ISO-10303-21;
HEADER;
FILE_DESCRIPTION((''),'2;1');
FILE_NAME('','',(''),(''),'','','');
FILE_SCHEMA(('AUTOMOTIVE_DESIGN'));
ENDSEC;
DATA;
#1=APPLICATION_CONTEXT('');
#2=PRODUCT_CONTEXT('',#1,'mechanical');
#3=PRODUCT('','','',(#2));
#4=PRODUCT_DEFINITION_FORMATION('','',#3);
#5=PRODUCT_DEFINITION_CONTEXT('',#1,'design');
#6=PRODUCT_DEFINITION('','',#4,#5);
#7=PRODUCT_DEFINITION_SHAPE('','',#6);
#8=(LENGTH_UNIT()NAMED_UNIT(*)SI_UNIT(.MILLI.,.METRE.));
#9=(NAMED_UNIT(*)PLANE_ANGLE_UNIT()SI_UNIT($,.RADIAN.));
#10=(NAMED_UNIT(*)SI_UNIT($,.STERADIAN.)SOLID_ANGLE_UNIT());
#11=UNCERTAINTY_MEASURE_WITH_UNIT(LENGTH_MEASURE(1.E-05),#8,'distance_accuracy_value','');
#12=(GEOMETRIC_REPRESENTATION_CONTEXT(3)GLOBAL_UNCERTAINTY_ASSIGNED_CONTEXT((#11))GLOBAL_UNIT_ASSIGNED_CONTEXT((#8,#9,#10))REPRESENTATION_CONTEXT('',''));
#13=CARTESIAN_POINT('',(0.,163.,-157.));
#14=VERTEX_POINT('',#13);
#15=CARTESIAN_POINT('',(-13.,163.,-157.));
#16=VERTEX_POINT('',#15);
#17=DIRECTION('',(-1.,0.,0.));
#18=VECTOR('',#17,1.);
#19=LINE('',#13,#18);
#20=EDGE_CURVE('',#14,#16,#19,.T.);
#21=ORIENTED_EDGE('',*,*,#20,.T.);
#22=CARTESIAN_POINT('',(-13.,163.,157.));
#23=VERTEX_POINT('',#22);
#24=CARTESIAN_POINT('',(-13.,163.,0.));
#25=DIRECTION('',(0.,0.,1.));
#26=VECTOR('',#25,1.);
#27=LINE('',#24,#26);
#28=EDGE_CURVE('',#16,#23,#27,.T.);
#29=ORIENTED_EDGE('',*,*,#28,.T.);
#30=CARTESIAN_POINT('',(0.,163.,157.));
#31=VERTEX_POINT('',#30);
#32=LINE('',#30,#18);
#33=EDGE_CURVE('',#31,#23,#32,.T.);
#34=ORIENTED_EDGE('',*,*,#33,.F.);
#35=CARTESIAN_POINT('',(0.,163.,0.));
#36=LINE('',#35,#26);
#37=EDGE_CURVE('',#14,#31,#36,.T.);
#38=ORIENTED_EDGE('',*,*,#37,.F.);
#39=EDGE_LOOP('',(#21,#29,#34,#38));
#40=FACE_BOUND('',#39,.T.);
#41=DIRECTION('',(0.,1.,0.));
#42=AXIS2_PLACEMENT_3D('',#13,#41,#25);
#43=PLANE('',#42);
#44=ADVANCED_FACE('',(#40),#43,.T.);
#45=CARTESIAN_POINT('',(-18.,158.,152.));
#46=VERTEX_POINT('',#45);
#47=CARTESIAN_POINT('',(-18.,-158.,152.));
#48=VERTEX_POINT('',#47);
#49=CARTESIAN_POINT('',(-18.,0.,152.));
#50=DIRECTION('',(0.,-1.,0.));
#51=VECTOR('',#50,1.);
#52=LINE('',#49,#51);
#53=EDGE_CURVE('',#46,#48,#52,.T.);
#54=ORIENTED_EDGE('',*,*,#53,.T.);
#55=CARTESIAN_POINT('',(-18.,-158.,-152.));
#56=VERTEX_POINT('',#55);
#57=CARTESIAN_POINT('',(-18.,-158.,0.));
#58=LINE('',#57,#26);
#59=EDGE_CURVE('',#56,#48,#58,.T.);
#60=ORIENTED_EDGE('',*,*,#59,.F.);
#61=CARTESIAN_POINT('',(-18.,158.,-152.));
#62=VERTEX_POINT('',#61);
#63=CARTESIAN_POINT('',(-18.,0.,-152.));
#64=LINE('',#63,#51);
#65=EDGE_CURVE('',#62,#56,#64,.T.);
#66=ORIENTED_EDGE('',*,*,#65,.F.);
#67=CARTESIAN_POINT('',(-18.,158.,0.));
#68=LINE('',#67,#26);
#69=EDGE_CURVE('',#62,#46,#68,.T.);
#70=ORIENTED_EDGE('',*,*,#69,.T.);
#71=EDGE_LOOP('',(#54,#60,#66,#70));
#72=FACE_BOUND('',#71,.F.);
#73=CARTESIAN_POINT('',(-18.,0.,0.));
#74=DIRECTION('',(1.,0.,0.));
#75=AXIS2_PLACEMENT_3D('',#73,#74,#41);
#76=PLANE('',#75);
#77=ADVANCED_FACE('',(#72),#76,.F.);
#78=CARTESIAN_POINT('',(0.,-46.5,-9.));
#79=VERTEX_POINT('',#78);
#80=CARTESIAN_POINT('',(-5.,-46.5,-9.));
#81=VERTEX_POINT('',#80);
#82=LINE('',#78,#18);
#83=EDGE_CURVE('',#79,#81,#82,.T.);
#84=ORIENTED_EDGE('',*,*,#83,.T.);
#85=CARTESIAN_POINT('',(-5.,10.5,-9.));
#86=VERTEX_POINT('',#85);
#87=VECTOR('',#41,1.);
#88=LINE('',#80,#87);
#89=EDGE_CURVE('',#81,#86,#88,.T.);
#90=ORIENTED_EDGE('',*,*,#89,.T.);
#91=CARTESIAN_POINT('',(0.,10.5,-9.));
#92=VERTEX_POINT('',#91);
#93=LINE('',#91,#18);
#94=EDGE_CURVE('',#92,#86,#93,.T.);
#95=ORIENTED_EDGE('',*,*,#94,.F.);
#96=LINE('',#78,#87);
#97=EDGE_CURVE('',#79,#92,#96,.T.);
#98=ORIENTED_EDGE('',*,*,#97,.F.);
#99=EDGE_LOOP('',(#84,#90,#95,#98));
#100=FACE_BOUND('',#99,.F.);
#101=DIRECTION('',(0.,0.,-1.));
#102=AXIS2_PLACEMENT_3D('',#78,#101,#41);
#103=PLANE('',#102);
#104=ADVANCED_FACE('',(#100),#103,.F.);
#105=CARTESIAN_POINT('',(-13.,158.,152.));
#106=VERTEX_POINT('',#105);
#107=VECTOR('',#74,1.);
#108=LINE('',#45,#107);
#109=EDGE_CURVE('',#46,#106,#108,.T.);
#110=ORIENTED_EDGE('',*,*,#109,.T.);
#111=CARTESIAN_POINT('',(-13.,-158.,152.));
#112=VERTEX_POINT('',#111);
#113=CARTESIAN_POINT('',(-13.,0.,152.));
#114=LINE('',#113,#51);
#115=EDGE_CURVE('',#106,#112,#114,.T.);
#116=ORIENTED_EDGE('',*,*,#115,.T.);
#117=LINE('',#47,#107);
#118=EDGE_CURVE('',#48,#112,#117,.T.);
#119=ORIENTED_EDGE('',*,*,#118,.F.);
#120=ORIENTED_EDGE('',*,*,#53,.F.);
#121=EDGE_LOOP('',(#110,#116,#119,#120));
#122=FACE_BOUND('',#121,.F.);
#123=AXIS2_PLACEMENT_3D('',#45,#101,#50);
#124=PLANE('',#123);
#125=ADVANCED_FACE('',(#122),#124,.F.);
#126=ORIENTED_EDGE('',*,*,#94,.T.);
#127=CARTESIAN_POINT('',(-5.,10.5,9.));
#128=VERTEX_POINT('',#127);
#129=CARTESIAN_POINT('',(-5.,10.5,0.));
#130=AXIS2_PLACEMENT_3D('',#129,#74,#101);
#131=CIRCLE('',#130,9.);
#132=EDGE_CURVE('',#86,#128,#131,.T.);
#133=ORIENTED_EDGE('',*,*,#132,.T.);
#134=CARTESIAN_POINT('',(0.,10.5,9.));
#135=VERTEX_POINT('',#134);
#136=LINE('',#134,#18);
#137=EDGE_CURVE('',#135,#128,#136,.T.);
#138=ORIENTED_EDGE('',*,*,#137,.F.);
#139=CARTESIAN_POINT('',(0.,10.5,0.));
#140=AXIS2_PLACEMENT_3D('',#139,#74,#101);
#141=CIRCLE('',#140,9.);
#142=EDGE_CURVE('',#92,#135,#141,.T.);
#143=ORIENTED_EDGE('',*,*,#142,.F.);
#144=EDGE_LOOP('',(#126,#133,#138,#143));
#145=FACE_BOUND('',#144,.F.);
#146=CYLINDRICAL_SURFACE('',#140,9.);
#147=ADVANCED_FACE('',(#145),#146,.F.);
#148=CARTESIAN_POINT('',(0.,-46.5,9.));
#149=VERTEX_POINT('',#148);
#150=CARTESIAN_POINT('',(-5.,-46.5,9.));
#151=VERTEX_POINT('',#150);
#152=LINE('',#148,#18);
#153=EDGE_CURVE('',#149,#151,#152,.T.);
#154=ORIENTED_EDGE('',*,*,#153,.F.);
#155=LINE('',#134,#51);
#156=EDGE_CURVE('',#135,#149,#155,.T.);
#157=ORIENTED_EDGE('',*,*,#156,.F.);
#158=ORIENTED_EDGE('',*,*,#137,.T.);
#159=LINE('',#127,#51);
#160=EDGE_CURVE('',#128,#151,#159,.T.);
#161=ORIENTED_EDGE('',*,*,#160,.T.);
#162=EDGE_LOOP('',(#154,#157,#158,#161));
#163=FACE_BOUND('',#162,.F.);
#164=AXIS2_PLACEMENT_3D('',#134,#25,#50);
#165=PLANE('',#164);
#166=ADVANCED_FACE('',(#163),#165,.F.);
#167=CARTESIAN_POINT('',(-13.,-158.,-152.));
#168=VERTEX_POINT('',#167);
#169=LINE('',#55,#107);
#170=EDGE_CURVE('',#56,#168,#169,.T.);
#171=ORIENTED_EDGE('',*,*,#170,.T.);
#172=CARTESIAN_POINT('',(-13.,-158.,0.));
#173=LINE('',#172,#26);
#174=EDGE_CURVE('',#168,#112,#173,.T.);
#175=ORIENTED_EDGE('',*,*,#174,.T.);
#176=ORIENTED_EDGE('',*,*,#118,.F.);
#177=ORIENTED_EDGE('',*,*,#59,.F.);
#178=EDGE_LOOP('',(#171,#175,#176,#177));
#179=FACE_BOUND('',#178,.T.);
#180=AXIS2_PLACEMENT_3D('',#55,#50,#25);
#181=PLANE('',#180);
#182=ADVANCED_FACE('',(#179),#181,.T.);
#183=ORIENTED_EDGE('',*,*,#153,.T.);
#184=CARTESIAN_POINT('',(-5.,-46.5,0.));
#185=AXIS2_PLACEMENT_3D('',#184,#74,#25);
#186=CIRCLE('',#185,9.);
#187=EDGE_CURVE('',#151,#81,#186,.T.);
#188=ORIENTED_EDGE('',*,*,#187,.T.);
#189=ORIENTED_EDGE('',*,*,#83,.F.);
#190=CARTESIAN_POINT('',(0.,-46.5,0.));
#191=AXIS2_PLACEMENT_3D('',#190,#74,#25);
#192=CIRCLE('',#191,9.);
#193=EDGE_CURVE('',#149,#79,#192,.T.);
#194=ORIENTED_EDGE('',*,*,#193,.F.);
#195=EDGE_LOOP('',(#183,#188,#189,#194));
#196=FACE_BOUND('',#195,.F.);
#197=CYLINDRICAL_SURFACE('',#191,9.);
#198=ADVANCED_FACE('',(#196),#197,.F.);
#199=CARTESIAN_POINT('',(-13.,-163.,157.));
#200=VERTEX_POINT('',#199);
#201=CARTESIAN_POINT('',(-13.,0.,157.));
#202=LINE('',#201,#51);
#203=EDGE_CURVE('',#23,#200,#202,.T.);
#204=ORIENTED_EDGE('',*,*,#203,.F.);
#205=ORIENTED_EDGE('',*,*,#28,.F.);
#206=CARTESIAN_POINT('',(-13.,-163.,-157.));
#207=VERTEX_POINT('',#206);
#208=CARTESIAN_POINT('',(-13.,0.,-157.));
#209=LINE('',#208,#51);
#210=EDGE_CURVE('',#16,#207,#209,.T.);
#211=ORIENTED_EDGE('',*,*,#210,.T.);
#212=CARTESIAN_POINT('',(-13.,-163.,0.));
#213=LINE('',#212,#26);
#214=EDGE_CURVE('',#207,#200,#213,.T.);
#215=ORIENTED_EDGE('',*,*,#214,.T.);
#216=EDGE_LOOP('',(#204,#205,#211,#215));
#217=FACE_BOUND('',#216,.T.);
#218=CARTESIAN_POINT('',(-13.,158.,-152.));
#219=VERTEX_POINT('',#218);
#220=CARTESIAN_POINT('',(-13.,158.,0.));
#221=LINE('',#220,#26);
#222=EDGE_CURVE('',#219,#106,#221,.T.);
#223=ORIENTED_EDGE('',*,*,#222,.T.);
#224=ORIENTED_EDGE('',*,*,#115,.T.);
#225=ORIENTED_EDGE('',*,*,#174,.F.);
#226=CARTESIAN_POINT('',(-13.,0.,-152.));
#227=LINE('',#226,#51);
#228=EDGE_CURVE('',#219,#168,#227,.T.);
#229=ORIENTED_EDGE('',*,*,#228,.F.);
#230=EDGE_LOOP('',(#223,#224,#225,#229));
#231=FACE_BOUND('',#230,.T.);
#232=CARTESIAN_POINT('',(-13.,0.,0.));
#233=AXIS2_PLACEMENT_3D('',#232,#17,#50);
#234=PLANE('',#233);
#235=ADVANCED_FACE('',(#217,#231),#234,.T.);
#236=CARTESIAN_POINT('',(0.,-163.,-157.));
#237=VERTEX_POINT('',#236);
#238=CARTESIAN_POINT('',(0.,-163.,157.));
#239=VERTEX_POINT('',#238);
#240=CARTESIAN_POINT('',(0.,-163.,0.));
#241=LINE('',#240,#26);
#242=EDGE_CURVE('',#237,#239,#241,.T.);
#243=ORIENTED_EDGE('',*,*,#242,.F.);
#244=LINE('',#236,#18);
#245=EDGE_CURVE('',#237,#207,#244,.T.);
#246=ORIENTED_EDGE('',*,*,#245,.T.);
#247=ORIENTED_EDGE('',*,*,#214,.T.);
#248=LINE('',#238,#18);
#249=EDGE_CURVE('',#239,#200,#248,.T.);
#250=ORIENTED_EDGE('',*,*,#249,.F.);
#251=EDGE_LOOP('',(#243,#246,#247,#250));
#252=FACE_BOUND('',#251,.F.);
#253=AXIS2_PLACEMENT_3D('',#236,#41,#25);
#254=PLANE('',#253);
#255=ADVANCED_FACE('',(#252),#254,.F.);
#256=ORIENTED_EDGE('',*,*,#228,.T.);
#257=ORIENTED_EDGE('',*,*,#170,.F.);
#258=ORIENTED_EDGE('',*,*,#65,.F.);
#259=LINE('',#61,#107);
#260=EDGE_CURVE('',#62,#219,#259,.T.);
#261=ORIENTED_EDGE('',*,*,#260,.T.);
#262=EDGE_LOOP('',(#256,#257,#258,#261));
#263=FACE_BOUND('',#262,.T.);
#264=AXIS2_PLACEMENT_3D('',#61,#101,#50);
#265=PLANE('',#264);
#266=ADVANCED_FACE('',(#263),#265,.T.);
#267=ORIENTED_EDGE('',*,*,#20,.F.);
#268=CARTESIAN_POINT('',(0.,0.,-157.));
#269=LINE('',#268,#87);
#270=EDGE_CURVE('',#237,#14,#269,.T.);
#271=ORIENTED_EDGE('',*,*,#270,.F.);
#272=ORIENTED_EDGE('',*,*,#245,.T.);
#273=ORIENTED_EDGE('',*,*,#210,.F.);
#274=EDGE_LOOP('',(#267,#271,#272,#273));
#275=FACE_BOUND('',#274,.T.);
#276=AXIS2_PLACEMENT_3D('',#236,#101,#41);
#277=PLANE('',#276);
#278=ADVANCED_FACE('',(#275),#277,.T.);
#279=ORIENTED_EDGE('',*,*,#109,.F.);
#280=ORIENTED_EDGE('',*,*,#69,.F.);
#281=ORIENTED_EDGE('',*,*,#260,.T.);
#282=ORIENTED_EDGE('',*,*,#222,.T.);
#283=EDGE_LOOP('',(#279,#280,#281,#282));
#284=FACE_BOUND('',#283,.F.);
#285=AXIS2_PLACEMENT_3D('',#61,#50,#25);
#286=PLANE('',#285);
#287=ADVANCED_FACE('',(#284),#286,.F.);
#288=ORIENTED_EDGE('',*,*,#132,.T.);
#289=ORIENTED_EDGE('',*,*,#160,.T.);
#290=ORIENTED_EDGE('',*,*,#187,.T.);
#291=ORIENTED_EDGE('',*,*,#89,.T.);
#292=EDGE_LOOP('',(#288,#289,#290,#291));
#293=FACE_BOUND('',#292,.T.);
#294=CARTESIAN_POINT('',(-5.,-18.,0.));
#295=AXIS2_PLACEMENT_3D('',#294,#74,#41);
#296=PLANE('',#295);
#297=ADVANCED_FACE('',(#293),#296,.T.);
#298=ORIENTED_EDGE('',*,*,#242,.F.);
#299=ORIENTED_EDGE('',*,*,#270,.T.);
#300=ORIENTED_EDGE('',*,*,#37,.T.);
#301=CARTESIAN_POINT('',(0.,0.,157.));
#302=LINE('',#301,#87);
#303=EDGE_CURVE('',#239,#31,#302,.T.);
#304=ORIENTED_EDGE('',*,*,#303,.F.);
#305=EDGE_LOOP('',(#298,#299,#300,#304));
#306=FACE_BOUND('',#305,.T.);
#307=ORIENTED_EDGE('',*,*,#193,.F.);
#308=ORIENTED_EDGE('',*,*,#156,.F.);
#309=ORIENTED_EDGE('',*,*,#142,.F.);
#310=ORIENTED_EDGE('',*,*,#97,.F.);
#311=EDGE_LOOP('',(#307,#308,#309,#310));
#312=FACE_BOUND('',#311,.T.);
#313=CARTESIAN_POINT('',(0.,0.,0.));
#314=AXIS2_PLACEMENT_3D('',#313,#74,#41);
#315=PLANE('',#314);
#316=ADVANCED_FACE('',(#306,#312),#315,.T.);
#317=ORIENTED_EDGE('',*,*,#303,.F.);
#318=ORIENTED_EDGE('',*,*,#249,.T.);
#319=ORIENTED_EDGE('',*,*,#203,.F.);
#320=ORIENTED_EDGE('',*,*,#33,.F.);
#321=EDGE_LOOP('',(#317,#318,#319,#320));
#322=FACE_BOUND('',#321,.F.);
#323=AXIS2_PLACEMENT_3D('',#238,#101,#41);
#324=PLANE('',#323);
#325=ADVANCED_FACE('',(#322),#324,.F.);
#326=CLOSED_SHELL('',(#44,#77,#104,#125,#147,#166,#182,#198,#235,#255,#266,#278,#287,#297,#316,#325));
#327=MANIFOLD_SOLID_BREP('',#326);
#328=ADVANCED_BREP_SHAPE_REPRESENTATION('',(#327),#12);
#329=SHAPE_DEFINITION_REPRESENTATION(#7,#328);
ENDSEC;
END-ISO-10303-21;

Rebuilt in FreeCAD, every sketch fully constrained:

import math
import FreeCAD as App
import Part
import Sketcher
from FreeCAD import Vector
Q = App.Units.Quantity

doc = App.newDocument("Part")
body = doc.addObject("PartDesign::Body", "Body")

# Sketch on YZ plane
sketch1 = body.newObject("Sketcher::SketchObject", "Sketch")
sketch1.AttachmentSupport = (doc.getObject("YZ_Plane"), [""])
sketch1.MapMode = "FlatFace"
sketch1.addGeometry(Part.LineSegment(Vector(-163, 157, 0), Vector(-163, -157, 0)), False)
sketch1.addGeometry(Part.LineSegment(Vector(-163, -157, 0), Vector(163, -157, 0)), False)
sketch1.addGeometry(Part.LineSegment(Vector(163, -157, 0), Vector(163, 157, 0)), False)
sketch1.addGeometry(Part.LineSegment(Vector(163, 157, 0), Vector(-163, 157, 0)), False)
sketch1.addConstraint(Sketcher.Constraint("Coincident", 0, 2, 1, 1))
sketch1.addConstraint(Sketcher.Constraint("Coincident", 1, 2, 2, 1))
sketch1.addConstraint(Sketcher.Constraint("Coincident", 2, 2, 3, 1))
sketch1.addConstraint(Sketcher.Constraint("Coincident", 3, 2, 0, 1))
sketch1.addConstraint(Sketcher.Constraint("Vertical", 0))
sketch1.addConstraint(Sketcher.Constraint("Horizontal", 1))
sketch1.addConstraint(Sketcher.Constraint("Vertical", 2))
sketch1.addConstraint(Sketcher.Constraint("Horizontal", 3))
sketch1.addConstraint(Sketcher.Constraint("Symmetric", 0, 2, 2, 2, -1, 1))
sketch1.addConstraint(Sketcher.Constraint("DistanceX", 1, 1, 1, 2, Q("326 mm")))
sketch1.addConstraint(Sketcher.Constraint("DistanceY", 0, 2, 0, 1, Q("314 mm")))
pad1 = body.newObject("PartDesign::Pad", "Pad")
pad1.Profile = sketch1
pad1.Length = 18
pad1.Reversed = True

# Sketch on YZ plane
sketch2 = body.newObject("Sketcher::SketchObject", "Sketch001")
sketch2.AttachmentSupport = (doc.getObject("YZ_Plane"), [""])
sketch2.MapMode = "FlatFace"
sketch2.addGeometry(Part.ArcOfCircle(Part.Circle(Vector(10, 0, 0), Vector(0, 0, 1), 9), math.radians(-90), math.radians(90)), False)
sketch2.addGeometry(Part.LineSegment(Vector(10, 9, 0), Vector(-46, 9, 0)), False)
sketch2.addGeometry(Part.ArcOfCircle(Part.Circle(Vector(-46, 0, 0), Vector(0, 0, 1), 9), math.radians(90), math.radians(270)), False)
sketch2.addGeometry(Part.LineSegment(Vector(-46, -9, 0), Vector(10, -9, 0)), False)
sketch2.addConstraint(Sketcher.Constraint("Tangent", 0, 2, 1, 1))
sketch2.addConstraint(Sketcher.Constraint("Tangent", 1, 2, 2, 1))
sketch2.addConstraint(Sketcher.Constraint("Tangent", 2, 2, 3, 1))
sketch2.addConstraint(Sketcher.Constraint("Tangent", 3, 2, 0, 1))
sketch2.addConstraint(Sketcher.Constraint("Horizontal", 1))
sketch2.addConstraint(Sketcher.Constraint("Horizontal", 3))
sketch2.addConstraint(Sketcher.Constraint("PointOnObject", 0, 3, -1))
sketch2.addConstraint(Sketcher.Constraint("Radius", 0, Q("9 mm")))
sketch2.addConstraint(Sketcher.Constraint("DistanceX", 1, 2, 1, 1, Q("57 mm")))
sketch2.addConstraint(Sketcher.Constraint("DistanceX", -1, 1, 0, 3, Q("10.5 mm")))
pocket1 = body.newObject("PartDesign::Pocket", "Pocket")
pocket1.Profile = sketch2
pocket1.Length = 5

# Sketch on YZ plane
sketch3 = body.newObject("Sketcher::SketchObject", "Sketch002")
sketch3.AttachmentSupport = (doc.getObject("YZ_Plane"), [""])
sketch3.MapMode = "FlatFace"
sketch3.AttachmentOffset = App.Placement(Vector(0, 0, -18), App.Rotation())
sketch3.addGeometry(Part.LineSegment(Vector(163, 157, 0), Vector(163, -157, 0)), False)
sketch3.addGeometry(Part.LineSegment(Vector(163, -157, 0), Vector(-163, -157, 0)), False)
sketch3.addGeometry(Part.LineSegment(Vector(-163, -157, 0), Vector(-163, 157, 0)), False)
sketch3.addGeometry(Part.LineSegment(Vector(-163, 157, 0), Vector(163, 157, 0)), False)
sketch3.addGeometry(Part.LineSegment(Vector(-158, -152, 0), Vector(158, -152, 0)), False)
sketch3.addGeometry(Part.LineSegment(Vector(158, -152, 0), Vector(158, 152, 0)), False)
sketch3.addGeometry(Part.LineSegment(Vector(158, 152, 0), Vector(-158, 152, 0)), False)
sketch3.addGeometry(Part.LineSegment(Vector(-158, 152, 0), Vector(-158, -152, 0)), False)
sketch3.addConstraint(Sketcher.Constraint("Coincident", 0, 2, 1, 1))
sketch3.addConstraint(Sketcher.Constraint("Coincident", 1, 2, 2, 1))
sketch3.addConstraint(Sketcher.Constraint("Coincident", 2, 2, 3, 1))
sketch3.addConstraint(Sketcher.Constraint("Coincident", 3, 2, 0, 1))
sketch3.addConstraint(Sketcher.Constraint("Coincident", 4, 2, 5, 1))
sketch3.addConstraint(Sketcher.Constraint("Coincident", 5, 2, 6, 1))
sketch3.addConstraint(Sketcher.Constraint("Coincident", 6, 2, 7, 1))
sketch3.addConstraint(Sketcher.Constraint("Coincident", 7, 2, 4, 1))
sketch3.addConstraint(Sketcher.Constraint("Vertical", 0))
sketch3.addConstraint(Sketcher.Constraint("Horizontal", 1))
sketch3.addConstraint(Sketcher.Constraint("Vertical", 2))
sketch3.addConstraint(Sketcher.Constraint("Horizontal", 3))
sketch3.addConstraint(Sketcher.Constraint("Horizontal", 4))
sketch3.addConstraint(Sketcher.Constraint("Vertical", 5))
sketch3.addConstraint(Sketcher.Constraint("Horizontal", 6))
sketch3.addConstraint(Sketcher.Constraint("Vertical", 7))
sketch3.addConstraint(Sketcher.Constraint("Symmetric", 0, 2, 2, 2, -1, 1))
sketch3.addConstraint(Sketcher.Constraint("Symmetric", 4, 2, 6, 2, -1, 1))
sketch3.addConstraint(Sketcher.Constraint("DistanceX", 1, 2, 1, 1, Q("326 mm")))
sketch3.addConstraint(Sketcher.Constraint("DistanceX", 4, 1, 4, 2, Q("316 mm")))
sketch3.addConstraint(Sketcher.Constraint("DistanceY", 0, 2, 0, 1, Q("314 mm")))
sketch3.addConstraint(Sketcher.Constraint("DistanceY", 5, 1, 5, 2, Q("304 mm")))
pocket2 = body.newObject("PartDesign::Pocket", "Pocket001")
pocket2.Profile = sketch3
pocket2.Length = 5
pocket2.Reversed = True

doc.recompute()
